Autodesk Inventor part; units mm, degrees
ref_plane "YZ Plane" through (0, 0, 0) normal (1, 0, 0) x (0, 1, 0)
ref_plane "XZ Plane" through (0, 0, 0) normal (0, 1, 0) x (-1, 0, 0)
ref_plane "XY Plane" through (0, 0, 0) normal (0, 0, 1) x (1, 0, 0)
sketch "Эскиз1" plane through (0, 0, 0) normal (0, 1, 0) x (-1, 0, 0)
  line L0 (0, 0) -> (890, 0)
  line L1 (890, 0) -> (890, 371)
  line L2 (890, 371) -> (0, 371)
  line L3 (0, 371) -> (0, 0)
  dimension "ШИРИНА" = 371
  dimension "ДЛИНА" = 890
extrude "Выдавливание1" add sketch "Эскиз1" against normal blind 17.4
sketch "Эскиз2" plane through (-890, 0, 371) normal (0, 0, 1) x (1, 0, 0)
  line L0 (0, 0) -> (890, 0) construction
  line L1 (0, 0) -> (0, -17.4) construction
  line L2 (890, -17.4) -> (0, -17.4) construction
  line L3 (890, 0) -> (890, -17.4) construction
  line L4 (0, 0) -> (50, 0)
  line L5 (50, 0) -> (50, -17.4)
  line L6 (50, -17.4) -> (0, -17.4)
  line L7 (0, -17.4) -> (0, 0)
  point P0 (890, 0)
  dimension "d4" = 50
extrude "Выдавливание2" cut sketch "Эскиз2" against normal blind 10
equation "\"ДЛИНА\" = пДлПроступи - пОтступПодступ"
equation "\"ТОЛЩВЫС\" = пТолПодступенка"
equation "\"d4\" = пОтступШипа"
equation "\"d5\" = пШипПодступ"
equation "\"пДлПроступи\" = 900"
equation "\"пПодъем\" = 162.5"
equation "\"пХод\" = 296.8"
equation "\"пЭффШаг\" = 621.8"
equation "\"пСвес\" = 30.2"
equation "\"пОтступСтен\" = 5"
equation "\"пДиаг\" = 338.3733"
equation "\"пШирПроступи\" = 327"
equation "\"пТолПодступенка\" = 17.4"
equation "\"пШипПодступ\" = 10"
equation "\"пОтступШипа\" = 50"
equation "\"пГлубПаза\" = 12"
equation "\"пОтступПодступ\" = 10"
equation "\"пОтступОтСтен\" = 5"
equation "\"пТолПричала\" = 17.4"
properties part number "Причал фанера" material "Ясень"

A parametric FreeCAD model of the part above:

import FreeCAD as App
import Part
import Sketcher
from FreeCAD import Vector
Q = App.Units.Quantity

doc = App.newDocument("Part")
body = doc.addObject("PartDesign::Body", "Body")

sketch1 = body.newObject("Sketcher::SketchObject", "Sketch")
sketch1.AttachmentSupport = (doc.getObject("XZ_Plane"), [""])
sketch1.MapMode = "FlatFace"
sketch1.addGeometry(Part.LineSegment(Vector(0, 371, 0), Vector(0, 0, 0)), False)
sketch1.addGeometry(Part.LineSegment(Vector(0, 0, 0), Vector(-890, 0, 0)), False)
sketch1.addGeometry(Part.LineSegment(Vector(-890, 0, 0), Vector(-890, 371, 0)), False)
sketch1.addGeometry(Part.LineSegment(Vector(-890, 371, 0), Vector(0, 371, 0)), False)
sketch1.addConstraint(Sketcher.Constraint("Coincident", 0, 2, 1, 1))
sketch1.addConstraint(Sketcher.Constraint("Coincident", 1, 2, 2, 1))
sketch1.addConstraint(Sketcher.Constraint("Coincident", 2, 2, 3, 1))
sketch1.addConstraint(Sketcher.Constraint("Coincident", 3, 2, 0, 1))
sketch1.addConstraint(Sketcher.Constraint("Vertical", 0))
sketch1.addConstraint(Sketcher.Constraint("Horizontal", 1))
sketch1.addConstraint(Sketcher.Constraint("Vertical", 2))
sketch1.addConstraint(Sketcher.Constraint("Horizontal", 3))
sketch1.addConstraint(Sketcher.Constraint("Coincident", 0, 2, -1, 1))
sketch1.addConstraint(Sketcher.Constraint("DistanceX", 1, 2, 1, 1, Q("890 mm")))
sketch1.addConstraint(Sketcher.Constraint("DistanceY", 0, 2, 0, 1, Q("371 mm")))
pad1 = body.newObject("PartDesign::Pad", "Pad")
pad1.Profile = sketch1
pad1.Length = 17.4

sketch2 = body.newObject("Sketcher::SketchObject", "Sketch001")
sketch2.AttachmentSupport = (doc.getObject("XY_Plane"), [""])
sketch2.MapMode = "FlatFace"
sketch2.AttachmentOffset = App.Placement(Vector(0, 0, 371), App.Rotation())
sketch2.addGeometry(Part.LineSegment(Vector(-840, 0, 0), Vector(-890, 0, 0)), False)
sketch2.addGeometry(Part.LineSegment(Vector(-890, 0, 0), Vector(-890, -17.4, 0)), False)
sketch2.addGeometry(Part.LineSegment(Vector(-890, -17.4, 0), Vector(-840, -17.4, 0)), False)
sketch2.addGeometry(Part.LineSegment(Vector(-840, -17.4, 0), Vector(-840, 0, 0)), False)
sketch2.addConstraint(Sketcher.Constraint("Coincident", 0, 2, 1, 1))
sketch2.addConstraint(Sketcher.Constraint("Coincident", 1, 2, 2, 1))
sketch2.addConstraint(Sketcher.Constraint("Coincident", 2, 2, 3, 1))
sketch2.addConstraint(Sketcher.Constraint("Coincident", 3, 2, 0, 1))
sketch2.addConstraint(Sketcher.Constraint("Horizontal", 0))
sketch2.addConstraint(Sketcher.Constraint("Vertical", 1))
sketch2.addConstraint(Sketcher.Constraint("Horizontal", 2))
sketch2.addConstraint(Sketcher.Constraint("Vertical", 3))
sketch2.addConstraint(Sketcher.Constraint("PointOnObject", 0, 2, -1))
sketch2.addConstraint(Sketcher.Constraint("DistanceX", 0, 2, 0, 1, Q("50 mm")))
sketch2.addConstraint(Sketcher.Constraint("DistanceY", 1, 2, 1, 1, Q("17.4 mm")))
sketch2.addConstraint(Sketcher.Constraint("DistanceX", 0, 2, -1, 1, Q("890 mm")))
pocket1 = body.newObject("PartDesign::Pocket", "Pocket")
pocket1.Profile = sketch2
pocket1.Length = 10

doc.recompute()
